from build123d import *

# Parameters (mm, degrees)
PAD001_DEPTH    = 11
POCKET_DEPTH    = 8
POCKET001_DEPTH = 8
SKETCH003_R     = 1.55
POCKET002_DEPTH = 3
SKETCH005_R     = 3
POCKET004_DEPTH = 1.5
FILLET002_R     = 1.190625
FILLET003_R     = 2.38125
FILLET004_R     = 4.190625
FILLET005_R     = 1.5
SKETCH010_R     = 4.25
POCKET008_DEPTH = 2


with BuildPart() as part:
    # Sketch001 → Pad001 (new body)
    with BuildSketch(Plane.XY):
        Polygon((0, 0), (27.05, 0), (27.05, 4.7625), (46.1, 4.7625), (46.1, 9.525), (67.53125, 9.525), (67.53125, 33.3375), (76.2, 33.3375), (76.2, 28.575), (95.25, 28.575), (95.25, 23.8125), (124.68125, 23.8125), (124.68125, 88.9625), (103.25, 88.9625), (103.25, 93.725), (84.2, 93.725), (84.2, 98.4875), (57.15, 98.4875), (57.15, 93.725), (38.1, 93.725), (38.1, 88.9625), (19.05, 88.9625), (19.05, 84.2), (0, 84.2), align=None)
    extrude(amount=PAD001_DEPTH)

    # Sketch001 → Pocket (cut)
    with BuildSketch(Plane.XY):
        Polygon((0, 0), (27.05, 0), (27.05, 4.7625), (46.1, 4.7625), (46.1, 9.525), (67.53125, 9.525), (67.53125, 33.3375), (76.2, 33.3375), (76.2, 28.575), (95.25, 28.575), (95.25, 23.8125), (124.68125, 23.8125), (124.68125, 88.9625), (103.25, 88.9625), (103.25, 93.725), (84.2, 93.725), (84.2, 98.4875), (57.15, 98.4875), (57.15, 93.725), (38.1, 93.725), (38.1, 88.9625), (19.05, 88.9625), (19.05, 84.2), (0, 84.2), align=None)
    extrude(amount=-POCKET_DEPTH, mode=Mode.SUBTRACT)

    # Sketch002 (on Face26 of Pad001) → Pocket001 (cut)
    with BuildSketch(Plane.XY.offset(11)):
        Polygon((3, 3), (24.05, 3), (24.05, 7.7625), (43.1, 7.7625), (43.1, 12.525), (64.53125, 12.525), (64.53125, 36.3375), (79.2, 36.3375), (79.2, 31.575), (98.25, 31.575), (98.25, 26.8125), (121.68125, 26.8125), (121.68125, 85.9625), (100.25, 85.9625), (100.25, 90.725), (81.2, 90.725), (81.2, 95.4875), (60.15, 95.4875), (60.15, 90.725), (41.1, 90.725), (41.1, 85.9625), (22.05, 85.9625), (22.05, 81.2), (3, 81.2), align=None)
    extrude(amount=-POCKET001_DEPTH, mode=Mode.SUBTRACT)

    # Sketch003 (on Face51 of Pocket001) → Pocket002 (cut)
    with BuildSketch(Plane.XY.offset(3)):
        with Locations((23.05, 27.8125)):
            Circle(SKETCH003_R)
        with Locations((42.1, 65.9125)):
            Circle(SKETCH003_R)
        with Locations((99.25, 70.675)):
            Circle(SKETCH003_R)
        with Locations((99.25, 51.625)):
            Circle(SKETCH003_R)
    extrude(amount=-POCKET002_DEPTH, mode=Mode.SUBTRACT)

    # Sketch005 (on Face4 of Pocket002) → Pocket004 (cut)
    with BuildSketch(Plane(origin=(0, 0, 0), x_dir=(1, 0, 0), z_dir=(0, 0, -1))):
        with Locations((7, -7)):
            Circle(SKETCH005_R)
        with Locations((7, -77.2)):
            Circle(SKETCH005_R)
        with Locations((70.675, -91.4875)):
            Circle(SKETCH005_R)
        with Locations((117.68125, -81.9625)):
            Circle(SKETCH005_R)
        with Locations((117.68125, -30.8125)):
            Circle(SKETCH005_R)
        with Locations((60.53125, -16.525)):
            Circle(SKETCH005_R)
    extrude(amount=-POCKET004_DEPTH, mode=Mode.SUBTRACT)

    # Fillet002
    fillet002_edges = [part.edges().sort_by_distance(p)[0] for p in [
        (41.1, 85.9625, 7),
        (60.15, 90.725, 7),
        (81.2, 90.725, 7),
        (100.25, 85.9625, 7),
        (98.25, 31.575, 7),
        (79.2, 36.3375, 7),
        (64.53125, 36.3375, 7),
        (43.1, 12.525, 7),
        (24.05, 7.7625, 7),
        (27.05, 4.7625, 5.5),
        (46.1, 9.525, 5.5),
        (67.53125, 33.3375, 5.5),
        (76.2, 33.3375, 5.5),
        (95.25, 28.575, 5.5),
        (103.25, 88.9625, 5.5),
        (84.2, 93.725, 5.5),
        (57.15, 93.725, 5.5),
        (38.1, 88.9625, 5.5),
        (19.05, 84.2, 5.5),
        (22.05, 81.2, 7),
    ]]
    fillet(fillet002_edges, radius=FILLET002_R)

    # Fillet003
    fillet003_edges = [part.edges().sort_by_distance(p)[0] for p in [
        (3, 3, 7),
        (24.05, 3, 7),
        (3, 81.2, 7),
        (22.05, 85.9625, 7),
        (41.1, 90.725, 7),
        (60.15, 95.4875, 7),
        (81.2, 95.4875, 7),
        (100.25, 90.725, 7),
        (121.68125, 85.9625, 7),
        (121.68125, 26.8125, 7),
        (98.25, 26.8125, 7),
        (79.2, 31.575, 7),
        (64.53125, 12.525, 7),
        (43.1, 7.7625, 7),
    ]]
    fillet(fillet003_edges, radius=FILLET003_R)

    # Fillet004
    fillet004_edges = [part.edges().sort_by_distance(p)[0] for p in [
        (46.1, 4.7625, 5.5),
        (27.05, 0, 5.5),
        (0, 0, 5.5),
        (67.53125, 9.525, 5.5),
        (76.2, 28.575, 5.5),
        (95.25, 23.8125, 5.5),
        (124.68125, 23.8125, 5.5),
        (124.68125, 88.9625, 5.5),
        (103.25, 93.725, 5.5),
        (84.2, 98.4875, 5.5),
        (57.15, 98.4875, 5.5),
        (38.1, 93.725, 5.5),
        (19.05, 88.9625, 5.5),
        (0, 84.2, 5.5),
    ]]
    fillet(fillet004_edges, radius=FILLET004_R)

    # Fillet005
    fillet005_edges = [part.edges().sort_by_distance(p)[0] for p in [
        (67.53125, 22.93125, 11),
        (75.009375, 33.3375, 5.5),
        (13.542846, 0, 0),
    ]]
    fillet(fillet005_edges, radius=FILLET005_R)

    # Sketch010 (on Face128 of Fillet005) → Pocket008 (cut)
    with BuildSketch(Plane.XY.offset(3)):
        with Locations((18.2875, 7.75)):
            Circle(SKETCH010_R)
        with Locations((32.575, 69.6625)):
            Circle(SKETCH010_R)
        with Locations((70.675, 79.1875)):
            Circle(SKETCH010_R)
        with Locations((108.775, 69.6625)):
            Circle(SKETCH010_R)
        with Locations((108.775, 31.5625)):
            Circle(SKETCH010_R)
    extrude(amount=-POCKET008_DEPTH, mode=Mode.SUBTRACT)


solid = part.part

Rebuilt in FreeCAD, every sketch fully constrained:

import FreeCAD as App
import Part
import Sketcher
from FreeCAD import Vector


def edges_at(feature, points):
    """Names of the edges that pass closest to the given points."""
    edges = feature.Shape.Edges
    near = lambda p: min(range(len(edges)), key=lambda i: edges[i].distToShape(Part.Vertex(*p))[0])
    return sorted({f"Edge{near(p) + 1}" for p in points})

doc = App.newDocument("Part")
body = doc.addObject("PartDesign::Body", "Body")

# Sketch on XY plane
sketch1 = body.newObject("Sketcher::SketchObject", "Sketch")
sketch1.AttachmentSupport = (doc.getObject("XY_Plane"), [""])
sketch1.MapMode = "FlatFace"
sketch1.addGeometry([
    Part.LineSegment(Vector(0, 0, 0), Vector(27.05, 0, 0)),  # 0
    Part.LineSegment(Vector(27.05, 0, 0), Vector(27.05, 4.7625, 0)),  # 1
    Part.LineSegment(Vector(27.05, 4.7625, 0), Vector(46.1, 4.7625, 0)),  # 2
    Part.LineSegment(Vector(46.1, 4.7625, 0), Vector(46.1, 9.525, 0)),  # 3
    Part.LineSegment(Vector(46.1, 9.525, 0), Vector(67.53125, 9.525, 0)),  # 4
    Part.LineSegment(Vector(67.53125, 9.525, 0), Vector(67.53125, 33.3375, 0)),  # 5
    Part.LineSegment(Vector(67.53125, 33.3375, 0), Vector(76.2, 33.3375, 0)),  # 6
    Part.LineSegment(Vector(76.2, 33.3375, 0), Vector(76.2, 28.575, 0)),  # 7
    Part.LineSegment(Vector(76.2, 28.575, 0), Vector(95.25, 28.575, 0)),  # 8
    Part.LineSegment(Vector(95.25, 28.575, 0), Vector(95.25, 23.8125, 0)),  # 9
    Part.LineSegment(Vector(95.25, 23.8125, 0), Vector(124.68125, 23.8125, 0)),  # 10
    Part.LineSegment(Vector(124.68125, 23.8125, 0), Vector(124.68125, 88.9625, 0)),  # 11
    Part.LineSegment(Vector(124.68125, 88.9625, 0), Vector(103.25, 88.9625, 0)),  # 12
    Part.LineSegment(Vector(103.25, 88.9625, 0), Vector(103.25, 93.725, 0)),  # 13
    Part.LineSegment(Vector(103.25, 93.725, 0), Vector(84.2, 93.725, 0)),  # 14
    Part.LineSegment(Vector(84.2, 93.725, 0), Vector(84.2, 98.4875, 0)),  # 15
    Part.LineSegment(Vector(84.2, 98.4875, 0), Vector(57.15, 98.4875, 0)),  # 16
    Part.LineSegment(Vector(57.15, 98.4875, 0), Vector(57.15, 93.725, 0)),  # 17
    Part.LineSegment(Vector(57.15, 93.725, 0), Vector(38.1, 93.725, 0)),  # 18
    Part.LineSegment(Vector(38.1, 93.725, 0), Vector(38.1, 88.9625, 0)),  # 19
    Part.LineSegment(Vector(38.1, 88.9625, 0), Vector(19.05, 88.9625, 0)),  # 20
    Part.LineSegment(Vector(19.05, 88.9625, 0), Vector(19.05, 84.2, 0)),  # 21
    Part.LineSegment(Vector(19.05, 84.2, 0), Vector(0, 84.2, 0)),  # 22
    Part.LineSegment(Vector(0, 84.2, 0), Vector(0, 0, 0)),  # 23
], False)
sketch1.addConstraint([
    Sketcher.Constraint("Coincident", 0, 2, 1, 1),
    Sketcher.Constraint("Coincident", 1, 2, 2, 1),
    Sketcher.Constraint("Coincident", 2, 2, 3, 1),
    Sketcher.Constraint("Coincident", 3, 2, 4, 1),
    Sketcher.Constraint("Coincident", 4, 2, 5, 1),
    Sketcher.Constraint("Coincident", 5, 2, 6, 1),
    Sketcher.Constraint("Coincident", 6, 2, 7, 1),
    Sketcher.Constraint("Coincident", 7, 2, 8, 1),
    Sketcher.Constraint("Coincident", 8, 2, 9, 1),
    Sketcher.Constraint("Coincident", 9, 2, 10, 1),
    Sketcher.Constraint("Coincident", 10, 2, 11, 1),
    Sketcher.Constraint("Coincident", 11, 2, 12, 1),
    Sketcher.Constraint("Coincident", 12, 2, 13, 1),
    Sketcher.Constraint("Coincident", 13, 2, 14, 1),
    Sketcher.Constraint("Coincident", 14, 2, 15, 1),
    Sketcher.Constraint("Coincident", 15, 2, 16, 1),
    Sketcher.Constraint("Coincident", 16, 2, 17, 1),
    Sketcher.Constraint("Coincident", 17, 2, 18, 1),
    Sketcher.Constraint("Coincident", 18, 2, 19, 1),
    Sketcher.Constraint("Coincident", 19, 2, 20, 1),
    Sketcher.Constraint("Coincident", 20, 2, 21, 1),
    Sketcher.Constraint("Coincident", 21, 2, 22, 1),
    Sketcher.Constraint("Coincident", 22, 2, 23, 1),
    Sketcher.Constraint("Coincident", 23, 2, 0, 1),
    Sketcher.Constraint("Horizontal", 0),
    Sketcher.Constraint("Vertical", 1),
    Sketcher.Constraint("Horizontal", 2),
    Sketcher.Constraint("Vertical", 3),
    Sketcher.Constraint("Horizontal", 4),
    Sketcher.Constraint("Vertical", 5),
    Sketcher.Constraint("Horizontal", 6),
    Sketcher.Constraint("Vertical", 7),
    Sketcher.Constraint("Horizontal", 8),
    Sketcher.Constraint("Vertical", 9),
    Sketcher.Constraint("Horizontal", 10),
    Sketcher.Constraint("Vertical", 11),
    Sketcher.Constraint("Horizontal", 12),
    Sketcher.Constraint("Vertical", 13),
    Sketcher.Constraint("Horizontal", 14),
    Sketcher.Constraint("Vertical", 15),
    Sketcher.Constraint("Horizontal", 16),
    Sketcher.Constraint("Vertical", 17),
    Sketcher.Constraint("Horizontal", 18),
    Sketcher.Constraint("Vertical", 19),
    Sketcher.Constraint("Horizontal", 20),
    Sketcher.Constraint("Vertical", 21),
    Sketcher.Constraint("Horizontal", 22),
    Sketcher.Constraint("Vertical", 23),
    Sketcher.Constraint("Coincident", 23, 2, -1, 1),
    Sketcher.Constraint("Horizontal", 14, 2, 17, 2),
    Sketcher.Constraint("Horizontal", 12, 2, 19, 2),
    Sketcher.Constraint("Equal", 2, 8),
    Sketcher.Constraint("Equal", 4, 12),
    Sketcher.Constraint("Equal", 8, 14),
    Sketcher.Constraint("Equal", 0, 16),
    Sketcher.Constraint("Equal", 14, 18),
    Sketcher.Constraint("Equal", 18, 20),
    Sketcher.Constraint("Equal", 20, 22),
    Sketcher.Constraint("Equal", 1, 3),
    Sketcher.Constraint("Equal", 3, 7),
    Sketcher.Constraint("Equal", 7, 9),
    Sketcher.Constraint("Equal", 9, 13),
    Sketcher.Constraint("Equal", 13, 15),
    Sketcher.Constraint("Equal", 19, 21),
    Sketcher.Constraint("DistanceY", 23, 2, 23, 1, 84.2),
    Sketcher.Constraint("DistanceX", 8, 2, 12, 2, 8.0),
    Sketcher.Constraint("DistanceX", 0, 1, 0, 2, 27.05),
    Sketcher.Constraint("DistanceX", 2, 1, 2, 2, 19.05),
    Sketcher.Constraint("DistanceY", 11, 1, 11, 2, 65.15),
    Sketcher.Constraint("DistanceY", 1, 1, 1, 2, 4.7625),
    Sketcher.Constraint("DistanceX", 4, 1, 4, 2, 21.43125),
])
pad1 = body.newObject("PartDesign::Pad", "Pad")
pad1.Profile = sketch1
pad1.Length = 11

# Sketch on XY plane
sketch2 = body.newObject("Sketcher::SketchObject", "Sketch001")
sketch2.AttachmentSupport = (doc.getObject("XY_Plane"), [""])
sketch2.MapMode = "FlatFace"
sketch2.addGeometry([
    Part.LineSegment(Vector(0, 0, 0), Vector(27.05, 0, 0)),  # 0
    Part.LineSegment(Vector(27.05, 0, 0), Vector(27.05, 4.7625, 0)),  # 1
    Part.LineSegment(Vector(27.05, 4.7625, 0), Vector(46.1, 4.7625, 0)),  # 2
    Part.LineSegment(Vector(46.1, 4.7625, 0), Vector(46.1, 9.525, 0)),  # 3
    Part.LineSegment(Vector(46.1, 9.525, 0), Vector(67.53125, 9.525, 0)),  # 4
    Part.LineSegment(Vector(67.53125, 9.525, 0), Vector(67.53125, 33.3375, 0)),  # 5
    Part.LineSegment(Vector(67.53125, 33.3375, 0), Vector(76.2, 33.3375, 0)),  # 6
    Part.LineSegment(Vector(76.2, 33.3375, 0), Vector(76.2, 28.575, 0)),  # 7
    Part.LineSegment(Vector(76.2, 28.575, 0), Vector(95.25, 28.575, 0)),  # 8
    Part.LineSegment(Vector(95.25, 28.575, 0), Vector(95.25, 23.8125, 0)),  # 9
    Part.LineSegment(Vector(95.25, 23.8125, 0), Vector(124.68125, 23.8125, 0)),  # 10
    Part.LineSegment(Vector(124.68125, 23.8125, 0), Vector(124.68125, 88.9625, 0)),  # 11
    Part.LineSegment(Vector(124.68125, 88.9625, 0), Vector(103.25, 88.9625, 0)),  # 12
    Part.LineSegment(Vector(103.25, 88.9625, 0), Vector(103.25, 93.725, 0)),  # 13
    Part.LineSegment(Vector(103.25, 93.725, 0), Vector(84.2, 93.725, 0)),  # 14
    Part.LineSegment(Vector(84.2, 93.725, 0), Vector(84.2, 98.4875, 0)),  # 15
    Part.LineSegment(Vector(84.2, 98.4875, 0), Vector(57.15, 98.4875, 0)),  # 16
    Part.LineSegment(Vector(57.15, 98.4875, 0), Vector(57.15, 93.725, 0)),  # 17
    Part.LineSegment(Vector(57.15, 93.725, 0), Vector(38.1, 93.725, 0)),  # 18
    Part.LineSegment(Vector(38.1, 93.725, 0), Vector(38.1, 88.9625, 0)),  # 19
    Part.LineSegment(Vector(38.1, 88.9625, 0), Vector(19.05, 88.9625, 0)),  # 20
    Part.LineSegment(Vector(19.05, 88.9625, 0), Vector(19.05, 84.2, 0)),  # 21
    Part.LineSegment(Vector(19.05, 84.2, 0), Vector(0, 84.2, 0)),  # 22
    Part.LineSegment(Vector(0, 84.2, 0), Vector(0, 0, 0)),  # 23
], False)
sketch2.addConstraint([
    Sketcher.Constraint("Coincident", 0, 2, 1, 1),
    Sketcher.Constraint("Coincident", 1, 2, 2, 1),
    Sketcher.Constraint("Coincident", 2, 2, 3, 1),
    Sketcher.Constraint("Coincident", 3, 2, 4, 1),
    Sketcher.Constraint("Coincident", 4, 2, 5, 1),
    Sketcher.Constraint("Coincident", 5, 2, 6, 1),
    Sketcher.Constraint("Coincident", 6, 2, 7, 1),
    Sketcher.Constraint("Coincident", 7, 2, 8, 1),
    Sketcher.Constraint("Coincident", 8, 2, 9, 1),
    Sketcher.Constraint("Coincident", 9, 2, 10, 1),
    Sketcher.Constraint("Coincident", 10, 2, 11, 1),
    Sketcher.Constraint("Coincident", 11, 2, 12, 1),
    Sketcher.Constraint("Coincident", 12, 2, 13, 1),
    Sketcher.Constraint("Coincident", 13, 2, 14, 1),
    Sketcher.Constraint("Coincident", 14, 2, 15, 1),
    Sketcher.Constraint("Coincident", 15, 2, 16, 1),
    Sketcher.Constraint("Coincident", 16, 2, 17, 1),
    Sketcher.Constraint("Coincident", 17, 2, 18, 1),
    Sketcher.Constraint("Coincident", 18, 2, 19, 1),
    Sketcher.Constraint("Coincident", 19, 2, 20, 1),
    Sketcher.Constraint("Coincident", 20, 2, 21, 1),
    Sketcher.Constraint("Coincident", 21, 2, 22, 1),
    Sketcher.Constraint("Coincident", 22, 2, 23, 1),
    Sketcher.Constraint("Coincident", 23, 2, 0, 1),
    Sketcher.Constraint("Horizontal", 0),
    Sketcher.Constraint("Vertical", 1),
    Sketcher.Constraint("Horizontal", 2),
    Sketcher.Constraint("Vertical", 3),
    Sketcher.Constraint("Horizontal", 4),
    Sketcher.Constraint("Vertical", 5),
    Sketcher.Constraint("Horizontal", 6),
    Sketcher.Constraint("Vertical", 7),
    Sketcher.Constraint("Horizontal", 8),
    Sketcher.Constraint("Vertical", 9),
    Sketcher.Constraint("Horizontal", 10),
    Sketcher.Constraint("Vertical", 11),
    Sketcher.Constraint("Horizontal", 12),
    Sketcher.Constraint("Vertical", 13),
    Sketcher.Constraint("Horizontal", 14),
    Sketcher.Constraint("Vertical", 15),
    Sketcher.Constraint("Horizontal", 16),
    Sketcher.Constraint("Vertical", 17),
    Sketcher.Constraint("Horizontal", 18),
    Sketcher.Constraint("Vertical", 19),
    Sketcher.Constraint("Horizontal", 20),
    Sketcher.Constraint("Vertical", 21),
    Sketcher.Constraint("Horizontal", 22),
    Sketcher.Constraint("Vertical", 23),
    Sketcher.Constraint("Coincident", 23, 2, -1, 1),
    Sketcher.Constraint("Horizontal", 14, 2, 17, 2),
    Sketcher.Constraint("Horizontal", 12, 2, 19, 2),
    Sketcher.Constraint("Equal", 2, 8),
    Sketcher.Constraint("Equal", 4, 12),
    Sketcher.Constraint("Equal", 8, 14),
    Sketcher.Constraint("Equal", 0, 16),
    Sketcher.Constraint("Equal", 14, 18),
    Sketcher.Constraint("Equal", 18, 20),
    Sketcher.Constraint("Equal", 20, 22),
    Sketcher.Constraint("Equal", 1, 3),
    Sketcher.Constraint("Equal", 3, 7),
    Sketcher.Constraint("Equal", 7, 9),
    Sketcher.Constraint("Equal", 9, 13),
    Sketcher.Constraint("Equal", 13, 15),
    Sketcher.Constraint("Equal", 19, 21),
    Sketcher.Constraint("DistanceY", 23, 2, 23, 1, 84.2),
    Sketcher.Constraint("DistanceX", 8, 2, 12, 2, 8.0),
    Sketcher.Constraint("DistanceX", 0, 1, 0, 2, 27.05),
    Sketcher.Constraint("DistanceX", 2, 1, 2, 2, 19.05),
    Sketcher.Constraint("DistanceY", 11, 1, 11, 2, 65.15),
    Sketcher.Constraint("DistanceY", 1, 1, 1, 2, 4.7625),
    Sketcher.Constraint("DistanceX", 4, 1, 4, 2, 21.43125),
])
pocket1 = body.newObject("PartDesign::Pocket", "Pocket")
pocket1.Profile = sketch2
pocket1.Length = 8

# Sketch on XY plane
sketch3 = body.newObject("Sketcher::SketchObject", "Sketch002")
sketch3.AttachmentSupport = (doc.getObject("XY_Plane"), [""])
sketch3.MapMode = "FlatFace"
sketch3.AttachmentOffset = App.Placement(Vector(0, 0, 11), App.Rotation())
sketch3.addGeometry([
    Part.LineSegment(Vector(3, 3, 0), Vector(24.05, 3, 0)),  # 0
    Part.LineSegment(Vector(24.05, 3, 0), Vector(24.05, 7.7625, 0)),  # 1
    Part.LineSegment(Vector(24.05, 7.7625, 0), Vector(43.1, 7.7625, 0)),  # 2
    Part.LineSegment(Vector(43.1, 7.7625, 0), Vector(43.1, 12.525, 0)),  # 3
    Part.LineSegment(Vector(43.1, 12.525, 0), Vector(64.53125, 12.525, 0)),  # 4
    Part.LineSegment(Vector(64.53125, 12.525, 0), Vector(64.53125, 36.3375, 0)),  # 5
    Part.LineSegment(Vector(64.53125, 36.3375, 0), Vector(79.2, 36.3375, 0)),  # 6
    Part.LineSegment(Vector(79.2, 36.3375, 0), Vector(79.2, 31.575, 0)),  # 7
    Part.LineSegment(Vector(79.2, 31.575, 0), Vector(98.25, 31.575, 0)),  # 8
    Part.LineSegment(Vector(98.25, 31.575, 0), Vector(98.25, 26.8125, 0)),  # 9
    Part.LineSegment(Vector(98.25, 26.8125, 0), Vector(121.68125, 26.8125, 0)),  # 10
    Part.LineSegment(Vector(121.68125, 26.8125, 0), Vector(121.68125, 85.9625, 0)),  # 11
    Part.LineSegment(Vector(121.68125, 85.9625, 0), Vector(100.25, 85.9625, 0)),  # 12
    Part.LineSegment(Vector(100.25, 85.9625, 0), Vector(100.25, 90.725, 0)),  # 13
    Part.LineSegment(Vector(100.25, 90.725, 0), Vector(81.2, 90.725, 0)),  # 14
    Part.LineSegment(Vector(81.2, 90.725, 0), Vector(81.2, 95.4875, 0)),  # 15
    Part.LineSegment(Vector(81.2, 95.4875, 0), Vector(60.15, 95.4875, 0)),  # 16
    Part.LineSegment(Vector(60.15, 95.4875, 0), Vector(60.15, 90.725, 0)),  # 17
    Part.LineSegment(Vector(60.15, 90.725, 0), Vector(41.1, 90.725, 0)),  # 18
    Part.LineSegment(Vector(41.1, 90.725, 0), Vector(41.1, 85.9625, 0)),  # 19
    Part.LineSegment(Vector(41.1, 85.9625, 0), Vector(22.05, 85.9625, 0)),  # 20
    Part.LineSegment(Vector(22.05, 85.9625, 0), Vector(22.05, 81.2, 0)),  # 21
    Part.LineSegment(Vector(22.05, 81.2, 0), Vector(3, 81.2, 0)),  # 22
    Part.LineSegment(Vector(3, 81.2, 0), Vector(3, 3, 0)),  # 23
], False)
sketch3.addConstraint([
    Sketcher.Constraint("Coincident", 0, 2, 1, 1),
    Sketcher.Constraint("Coincident", 1, 2, 2, 1),
    Sketcher.Constraint("Coincident", 2, 2, 3, 1),
    Sketcher.Constraint("Coincident", 3, 2, 4, 1),
    Sketcher.Constraint("Coincident", 4, 2, 5, 1),
    Sketcher.Constraint("Coincident", 5, 2, 6, 1),
    Sketcher.Constraint("Coincident", 6, 2, 7, 1),
    Sketcher.Constraint("Coincident", 7, 2, 8, 1),
    Sketcher.Constraint("Coincident", 8, 2, 9, 1),
    Sketcher.Constraint("Coincident", 9, 2, 10, 1),
    Sketcher.Constraint("Coincident", 10, 2, 11, 1),
    Sketcher.Constraint("Coincident", 11, 2, 12, 1),
    Sketcher.Constraint("Coincident", 12, 2, 13, 1),
    Sketcher.Constraint("Coincident", 13, 2, 14, 1),
    Sketcher.Constraint("Coincident", 14, 2, 15, 1),
    Sketcher.Constraint("Coincident", 15, 2, 16, 1),
    Sketcher.Constraint("Coincident", 16, 2, 17, 1),
    Sketcher.Constraint("Coincident", 17, 2, 18, 1),
    Sketcher.Constraint("Coincident", 18, 2, 19, 1),
    Sketcher.Constraint("Coincident", 19, 2, 20, 1),
    Sketcher.Constraint("Coincident", 20, 2, 21, 1),
    Sketcher.Constraint("Coincident", 21, 2, 22, 1),
    Sketcher.Constraint("Coincident", 22, 2, 23, 1),
    Sketcher.Constraint("Coincident", 23, 2, 0, 1),
    Sketcher.Constraint("Horizontal", 0),
    Sketcher.Constraint("Vertical", 1),
    Sketcher.Constraint("Horizontal", 2),
    Sketcher.Constraint("Vertical", 3),
    Sketcher.Constraint("Horizontal", 4),
    Sketcher.Constraint("Vertical", 5),
    Sketcher.Constraint("Horizontal", 6),
    Sketcher.Constraint("Vertical", 7),
    Sketcher.Constraint("Horizontal", 8),
    Sketcher.Constraint("Vertical", 9),
    Sketcher.Constraint("Horizontal", 10),
    Sketcher.Constraint("Vertical", 11),
    Sketcher.Constraint("Horizontal", 12),
    Sketcher.Constraint("Vertical", 13),
    Sketcher.Constraint("Horizontal", 14),
    Sketcher.Constraint("Vertical", 15),
    Sketcher.Constraint("Horizontal", 16),
    Sketcher.Constraint("Vertical", 17),
    Sketcher.Constraint("Horizontal", 18),
    Sketcher.Constraint("Vertical", 19),
    Sketcher.Constraint("Horizontal", 20),
    Sketcher.Constraint("Vertical", 21),
    Sketcher.Constraint("Horizontal", 22),
    Sketcher.Constraint("Vertical", 23),
    Sketcher.Constraint("Horizontal", 14, 2, 17, 2),
    Sketcher.Constraint("Horizontal", 12, 2, 19, 2),
    Sketcher.Constraint("Equal", 2, 8),
    Sketcher.Constraint("Equal", 4, 12),
    Sketcher.Constraint("Equal", 8, 14),
    Sketcher.Constraint("Equal", 0, 16),
    Sketcher.Constraint("Equal", 14, 18),
    Sketcher.Constraint("Equal", 18, 20),
    Sketcher.Constraint("Equal", 20, 22),
    Sketcher.Constraint("Equal", 1, 3),
    Sketcher.Constraint("Equal", 3, 7),
    Sketcher.Constraint("Equal", 7, 9),
    Sketcher.Constraint("Equal", 9, 13),
    Sketcher.Constraint("Equal", 13, 15),
    Sketcher.Constraint("Equal", 19, 21),
    Sketcher.Constraint("DistanceY", 23, 2, 23, 1, 78.2),
    Sketcher.Constraint("DistanceY", -1, 1, 0, 2, 3.0),
    Sketcher.Constraint("DistanceX", -1, 1, 22, 2, 3.0),
    Sketcher.Constraint("DistanceX", 8, 2, 12, 2, 2.0),
    Sketcher.Constraint("DistanceX", 0, 1, 0, 2, 21.05),
    Sketcher.Constraint("DistanceX", 2, 1, 2, 2, 19.05),
    Sketcher.Constraint("DistanceY", 11, 1, 11, 2, 59.15),
    Sketcher.Constraint("DistanceY", 1, 1, 1, 2, 4.7625),
    Sketcher.Constraint("DistanceX", 4, 1, 4, 2, 21.43125),
])
pocket2 = body.newObject("PartDesign::Pocket", "Pocket001")
pocket2.Profile = sketch3
pocket2.Length = 8

# Sketch on XY plane
sketch4 = body.newObject("Sketcher::SketchObject", "Sketch003")
sketch4.AttachmentSupport = (doc.getObject("XY_Plane"), [""])
sketch4.MapMode = "FlatFace"
sketch4.AttachmentOffset = App.Placement(Vector(0, 0, 3), App.Rotation())
sketch4.addGeometry([
    Part.Circle(Vector(23.05, 27.8125, 0), Vector(0, 0, 1), 1.55),
    Part.Circle(Vector(42.1, 65.9125, 0), Vector(0, 0, 1), 1.55),
    Part.Circle(Vector(99.25, 70.675, 0), Vector(0, 0, 1), 1.55),
    Part.Circle(Vector(99.25, 51.625, 0), Vector(0, 0, 1), 1.55),
], False)
sketch4.addConstraint([
    Sketcher.Constraint("Equal", 0, 1),
    Sketcher.Constraint("Equal", 1, 2),
    Sketcher.Constraint("Equal", 2, 3),
    Sketcher.Constraint("Vertical", 2, 3, 3, 3),
    Sketcher.Constraint("Diameter", 0, 3.1),
    Sketcher.Constraint("DistanceX", -1, 1, 1, 3, 42.1),
    Sketcher.Constraint("DistanceY", 0, 3, 1, 3, 38.1),
    Sketcher.Constraint("DistanceX", 0, 3, 2, 3, 76.2),
    Sketcher.Constraint("DistanceX", -1, 1, 0, 3, 23.05),
    Sketcher.Constraint("DistanceY", 3, 3, 2, 3, 19.05),
    Sketcher.Constraint("DistanceY", -1, 1, 2, 3, 70.675),
    Sketcher.Constraint("DistanceY", -1, 1, 0, 3, 27.8125),
])
pocket3 = body.newObject("PartDesign::Pocket", "Pocket002")
pocket3.Profile = sketch4
pocket3.Length = 3

# Sketch on XY plane
sketch5 = body.newObject("Sketcher::SketchObject", "Sketch004")
sketch5.AttachmentSupport = (doc.getObject("XY_Plane"), [""])
sketch5.MapMode = "FlatFace"
sketch5.addGeometry([
    Part.Circle(Vector(7, 7, 0), Vector(0, 0, 1), 3),  # 0
    Part.Circle(Vector(7, 77.2, 0), Vector(0, 0, 1), 3),  # 1
    Part.Circle(Vector(70.675, 91.4875, 0), Vector(0, 0, 1), 3),  # 2
    Part.Circle(Vector(117.68125, 81.9625, 0), Vector(0, 0, 1), 3),  # 3
    Part.Circle(Vector(117.68125, 30.8125, 0), Vector(0, 0, 1), 3),  # 4
    Part.Circle(Vector(60.53125, 16.525, 0), Vector(0, 0, 1), 3),  # 5
], False)
sketch5.addConstraint([
    Sketcher.Constraint("Equal", 0, 1),
    Sketcher.Constraint("Equal", 1, 2),
    Sketcher.Constraint("Equal", 2, 3),
    Sketcher.Constraint("Equal", 3, 4),
    Sketcher.Constraint("Equal", 4, 5),
    Sketcher.Constraint("Vertical", 0, 3, 1, 3),
    Sketcher.Constraint("Vertical", 3, 3, 4, 3),
    Sketcher.Constraint("Diameter", 0, 6.0),
    Sketcher.Constraint("DistanceX", -1, 1, 0, 3, 7.0),
    Sketcher.Constraint("DistanceY", -1, 1, 0, 3, 7.0),
    Sketcher.Constraint("DistanceY", -1, 1, 1, 3, 77.2),
    Sketcher.Constraint("DistanceY", 4, 3, 3, 3, 51.15),
    Sketcher.Constraint("DistanceX", 5, 3, 4, 3, 57.15),
    Sketcher.Constraint("DistanceX", -1, 1, 2, 3, 70.675),
    Sketcher.Constraint("DistanceY", -1, 1, 5, 3, 16.525),
    Sketcher.Constraint("DistanceY", 3, 3, 2, 3, 9.525),
    Sketcher.Constraint("DistanceY", -1, 1, 2, 3, 91.4875),
    Sketcher.Constraint("DistanceX", -1, 1, 3, 3, 117.68125),
])
pocket4 = body.newObject("PartDesign::Pocket", "Pocket003")
pocket4.Profile = sketch5
pocket4.Length = 1.5
pocket4.Reversed = True
doc.recompute()

fillet = body.newObject("PartDesign::Fillet", "Fillet")
fillet.Base = (pocket4, edges_at(pocket4, [
    (41.1, 85.963, 7),
    (60.15, 90.725, 7),
    (81.2, 90.725, 7),
    (100.25, 85.963, 7),
    (98.25, 31.575, 7),
    (79.2, 36.337, 7),
    (64.531, 36.337, 7),
    (43.1, 12.525, 7),
    (24.05, 7.763, 7),
    (27.05, 4.763, 5.5),
    (46.1, 9.525, 5.5),
    (67.531, 33.337, 5.5),
    (76.2, 33.337, 5.5),
    (95.25, 28.575, 5.5),
    (103.25, 88.963, 5.5),
    (84.2, 93.725, 5.5),
    (57.15, 93.725, 5.5),
    (38.1, 88.963, 5.5),
    (19.05, 84.2, 5.5),
    (22.05, 81.2, 7),
]))
fillet.Radius = 1.190625
doc.recompute()

fillet2 = body.newObject("PartDesign::Fillet", "Fillet001")
fillet2.Base = (fillet, edges_at(fillet, [
    (3, 3, 7),
    (24.05, 3, 7),
    (3, 81.2, 7),
    (22.05, 85.963, 7),
    (41.1, 90.725, 7),
    (60.15, 95.487, 7),
    (81.2, 95.487, 7),
    (100.25, 90.725, 7),
    (121.681, 85.963, 7),
    (121.681, 26.812, 7),
    (98.25, 26.812, 7),
    (79.2, 31.575, 7),
    (64.531, 12.525, 7),
    (43.1, 7.763, 7),
]))
fillet2.Radius = 2.38125
doc.recompute()

fillet3 = body.newObject("PartDesign::Fillet", "Fillet002")
fillet3.Base = (fillet2, edges_at(fillet2, [
    (46.1, 4.763, 5.5),
    (27.05, 0, 5.5),
    (0, 0, 5.5),
    (67.531, 9.525, 5.5),
    (76.2, 28.575, 5.5),
    (95.25, 23.812, 5.5),
    (124.681, 23.812, 5.5),
    (124.681, 88.963, 5.5),
    (103.25, 93.725, 5.5),
    (84.2, 98.487, 5.5),
    (57.15, 98.487, 5.5),
    (38.1, 93.725, 5.5),
    (19.05, 88.963, 5.5),
    (0, 84.2, 5.5),
]))
fillet3.Radius = 4.190625
doc.recompute()

fillet4 = body.newObject("PartDesign::Fillet", "Fillet003")
fillet4.Base = (fillet3, edges_at(fillet3, [(67.531, 22.931, 11), (75.009, 33.337, 5.5), (13.543, 0, 0)]))
fillet4.Radius = 1.5

# Sketch on XY plane
sketch6 = body.newObject("Sketcher::SketchObject", "Sketch005")
sketch6.AttachmentSupport = (doc.getObject("XY_Plane"), [""])
sketch6.MapMode = "FlatFace"
sketch6.AttachmentOffset = App.Placement(Vector(0, 0, 3), App.Rotation())
sketch6.addGeometry([
    Part.Circle(Vector(18.2875, 7.75, 0), Vector(0, 0, 1), 4.25),  # 0
    Part.Circle(Vector(32.575, 69.6625, 0), Vector(0, 0, 1), 4.25),  # 1
    Part.Circle(Vector(70.675, 79.1875, 0), Vector(0, 0, 1), 4.25),  # 2
    Part.Circle(Vector(108.775, 69.6625, 0), Vector(0, 0, 1), 4.25),  # 3
    Part.Circle(Vector(108.775, 31.5625, 0), Vector(0, 0, 1), 4.25),  # 4
], False)
sketch6.addConstraint([
    Sketcher.Constraint("Equal", 0, 1),
    Sketcher.Constraint("Equal", 1, 2),
    Sketcher.Constraint("Equal", 2, 3),
    Sketcher.Constraint("Equal", 3, 4),
    Sketcher.Constraint("Horizontal", 1, 3, 3, 3),
    Sketcher.Constraint("Vertical", 3, 3, 4, 3),
    Sketcher.Constraint("Diameter", 0, 8.5),
    Sketcher.Constraint("DistanceX", 1, 3, 2, 3, 38.1),
    Sketcher.Constraint("DistanceX", 2, 3, 3, 3, 38.1),
    Sketcher.Constraint("DistanceY", 4, 3, 3, 3, 38.1),
    Sketcher.Constraint("DistanceY", -1, 1, 0, 3, 7.75),
    Sketcher.Constraint("DistanceX", -1, 1, 1, 3, 32.575),
    Sketcher.Constraint("DistanceY", 1, 3, 2, 3, 9.525),
    Sketcher.Constraint("DistanceX", -1, 1, 0, 3, 18.2875),
    Sketcher.Constraint("DistanceY", -1, 1, 1, 3, 69.6625),
])
pocket5 = body.newObject("PartDesign::Pocket", "Pocket004")
pocket5.Profile = sketch6
pocket5.Length = 2

doc.recompute()
